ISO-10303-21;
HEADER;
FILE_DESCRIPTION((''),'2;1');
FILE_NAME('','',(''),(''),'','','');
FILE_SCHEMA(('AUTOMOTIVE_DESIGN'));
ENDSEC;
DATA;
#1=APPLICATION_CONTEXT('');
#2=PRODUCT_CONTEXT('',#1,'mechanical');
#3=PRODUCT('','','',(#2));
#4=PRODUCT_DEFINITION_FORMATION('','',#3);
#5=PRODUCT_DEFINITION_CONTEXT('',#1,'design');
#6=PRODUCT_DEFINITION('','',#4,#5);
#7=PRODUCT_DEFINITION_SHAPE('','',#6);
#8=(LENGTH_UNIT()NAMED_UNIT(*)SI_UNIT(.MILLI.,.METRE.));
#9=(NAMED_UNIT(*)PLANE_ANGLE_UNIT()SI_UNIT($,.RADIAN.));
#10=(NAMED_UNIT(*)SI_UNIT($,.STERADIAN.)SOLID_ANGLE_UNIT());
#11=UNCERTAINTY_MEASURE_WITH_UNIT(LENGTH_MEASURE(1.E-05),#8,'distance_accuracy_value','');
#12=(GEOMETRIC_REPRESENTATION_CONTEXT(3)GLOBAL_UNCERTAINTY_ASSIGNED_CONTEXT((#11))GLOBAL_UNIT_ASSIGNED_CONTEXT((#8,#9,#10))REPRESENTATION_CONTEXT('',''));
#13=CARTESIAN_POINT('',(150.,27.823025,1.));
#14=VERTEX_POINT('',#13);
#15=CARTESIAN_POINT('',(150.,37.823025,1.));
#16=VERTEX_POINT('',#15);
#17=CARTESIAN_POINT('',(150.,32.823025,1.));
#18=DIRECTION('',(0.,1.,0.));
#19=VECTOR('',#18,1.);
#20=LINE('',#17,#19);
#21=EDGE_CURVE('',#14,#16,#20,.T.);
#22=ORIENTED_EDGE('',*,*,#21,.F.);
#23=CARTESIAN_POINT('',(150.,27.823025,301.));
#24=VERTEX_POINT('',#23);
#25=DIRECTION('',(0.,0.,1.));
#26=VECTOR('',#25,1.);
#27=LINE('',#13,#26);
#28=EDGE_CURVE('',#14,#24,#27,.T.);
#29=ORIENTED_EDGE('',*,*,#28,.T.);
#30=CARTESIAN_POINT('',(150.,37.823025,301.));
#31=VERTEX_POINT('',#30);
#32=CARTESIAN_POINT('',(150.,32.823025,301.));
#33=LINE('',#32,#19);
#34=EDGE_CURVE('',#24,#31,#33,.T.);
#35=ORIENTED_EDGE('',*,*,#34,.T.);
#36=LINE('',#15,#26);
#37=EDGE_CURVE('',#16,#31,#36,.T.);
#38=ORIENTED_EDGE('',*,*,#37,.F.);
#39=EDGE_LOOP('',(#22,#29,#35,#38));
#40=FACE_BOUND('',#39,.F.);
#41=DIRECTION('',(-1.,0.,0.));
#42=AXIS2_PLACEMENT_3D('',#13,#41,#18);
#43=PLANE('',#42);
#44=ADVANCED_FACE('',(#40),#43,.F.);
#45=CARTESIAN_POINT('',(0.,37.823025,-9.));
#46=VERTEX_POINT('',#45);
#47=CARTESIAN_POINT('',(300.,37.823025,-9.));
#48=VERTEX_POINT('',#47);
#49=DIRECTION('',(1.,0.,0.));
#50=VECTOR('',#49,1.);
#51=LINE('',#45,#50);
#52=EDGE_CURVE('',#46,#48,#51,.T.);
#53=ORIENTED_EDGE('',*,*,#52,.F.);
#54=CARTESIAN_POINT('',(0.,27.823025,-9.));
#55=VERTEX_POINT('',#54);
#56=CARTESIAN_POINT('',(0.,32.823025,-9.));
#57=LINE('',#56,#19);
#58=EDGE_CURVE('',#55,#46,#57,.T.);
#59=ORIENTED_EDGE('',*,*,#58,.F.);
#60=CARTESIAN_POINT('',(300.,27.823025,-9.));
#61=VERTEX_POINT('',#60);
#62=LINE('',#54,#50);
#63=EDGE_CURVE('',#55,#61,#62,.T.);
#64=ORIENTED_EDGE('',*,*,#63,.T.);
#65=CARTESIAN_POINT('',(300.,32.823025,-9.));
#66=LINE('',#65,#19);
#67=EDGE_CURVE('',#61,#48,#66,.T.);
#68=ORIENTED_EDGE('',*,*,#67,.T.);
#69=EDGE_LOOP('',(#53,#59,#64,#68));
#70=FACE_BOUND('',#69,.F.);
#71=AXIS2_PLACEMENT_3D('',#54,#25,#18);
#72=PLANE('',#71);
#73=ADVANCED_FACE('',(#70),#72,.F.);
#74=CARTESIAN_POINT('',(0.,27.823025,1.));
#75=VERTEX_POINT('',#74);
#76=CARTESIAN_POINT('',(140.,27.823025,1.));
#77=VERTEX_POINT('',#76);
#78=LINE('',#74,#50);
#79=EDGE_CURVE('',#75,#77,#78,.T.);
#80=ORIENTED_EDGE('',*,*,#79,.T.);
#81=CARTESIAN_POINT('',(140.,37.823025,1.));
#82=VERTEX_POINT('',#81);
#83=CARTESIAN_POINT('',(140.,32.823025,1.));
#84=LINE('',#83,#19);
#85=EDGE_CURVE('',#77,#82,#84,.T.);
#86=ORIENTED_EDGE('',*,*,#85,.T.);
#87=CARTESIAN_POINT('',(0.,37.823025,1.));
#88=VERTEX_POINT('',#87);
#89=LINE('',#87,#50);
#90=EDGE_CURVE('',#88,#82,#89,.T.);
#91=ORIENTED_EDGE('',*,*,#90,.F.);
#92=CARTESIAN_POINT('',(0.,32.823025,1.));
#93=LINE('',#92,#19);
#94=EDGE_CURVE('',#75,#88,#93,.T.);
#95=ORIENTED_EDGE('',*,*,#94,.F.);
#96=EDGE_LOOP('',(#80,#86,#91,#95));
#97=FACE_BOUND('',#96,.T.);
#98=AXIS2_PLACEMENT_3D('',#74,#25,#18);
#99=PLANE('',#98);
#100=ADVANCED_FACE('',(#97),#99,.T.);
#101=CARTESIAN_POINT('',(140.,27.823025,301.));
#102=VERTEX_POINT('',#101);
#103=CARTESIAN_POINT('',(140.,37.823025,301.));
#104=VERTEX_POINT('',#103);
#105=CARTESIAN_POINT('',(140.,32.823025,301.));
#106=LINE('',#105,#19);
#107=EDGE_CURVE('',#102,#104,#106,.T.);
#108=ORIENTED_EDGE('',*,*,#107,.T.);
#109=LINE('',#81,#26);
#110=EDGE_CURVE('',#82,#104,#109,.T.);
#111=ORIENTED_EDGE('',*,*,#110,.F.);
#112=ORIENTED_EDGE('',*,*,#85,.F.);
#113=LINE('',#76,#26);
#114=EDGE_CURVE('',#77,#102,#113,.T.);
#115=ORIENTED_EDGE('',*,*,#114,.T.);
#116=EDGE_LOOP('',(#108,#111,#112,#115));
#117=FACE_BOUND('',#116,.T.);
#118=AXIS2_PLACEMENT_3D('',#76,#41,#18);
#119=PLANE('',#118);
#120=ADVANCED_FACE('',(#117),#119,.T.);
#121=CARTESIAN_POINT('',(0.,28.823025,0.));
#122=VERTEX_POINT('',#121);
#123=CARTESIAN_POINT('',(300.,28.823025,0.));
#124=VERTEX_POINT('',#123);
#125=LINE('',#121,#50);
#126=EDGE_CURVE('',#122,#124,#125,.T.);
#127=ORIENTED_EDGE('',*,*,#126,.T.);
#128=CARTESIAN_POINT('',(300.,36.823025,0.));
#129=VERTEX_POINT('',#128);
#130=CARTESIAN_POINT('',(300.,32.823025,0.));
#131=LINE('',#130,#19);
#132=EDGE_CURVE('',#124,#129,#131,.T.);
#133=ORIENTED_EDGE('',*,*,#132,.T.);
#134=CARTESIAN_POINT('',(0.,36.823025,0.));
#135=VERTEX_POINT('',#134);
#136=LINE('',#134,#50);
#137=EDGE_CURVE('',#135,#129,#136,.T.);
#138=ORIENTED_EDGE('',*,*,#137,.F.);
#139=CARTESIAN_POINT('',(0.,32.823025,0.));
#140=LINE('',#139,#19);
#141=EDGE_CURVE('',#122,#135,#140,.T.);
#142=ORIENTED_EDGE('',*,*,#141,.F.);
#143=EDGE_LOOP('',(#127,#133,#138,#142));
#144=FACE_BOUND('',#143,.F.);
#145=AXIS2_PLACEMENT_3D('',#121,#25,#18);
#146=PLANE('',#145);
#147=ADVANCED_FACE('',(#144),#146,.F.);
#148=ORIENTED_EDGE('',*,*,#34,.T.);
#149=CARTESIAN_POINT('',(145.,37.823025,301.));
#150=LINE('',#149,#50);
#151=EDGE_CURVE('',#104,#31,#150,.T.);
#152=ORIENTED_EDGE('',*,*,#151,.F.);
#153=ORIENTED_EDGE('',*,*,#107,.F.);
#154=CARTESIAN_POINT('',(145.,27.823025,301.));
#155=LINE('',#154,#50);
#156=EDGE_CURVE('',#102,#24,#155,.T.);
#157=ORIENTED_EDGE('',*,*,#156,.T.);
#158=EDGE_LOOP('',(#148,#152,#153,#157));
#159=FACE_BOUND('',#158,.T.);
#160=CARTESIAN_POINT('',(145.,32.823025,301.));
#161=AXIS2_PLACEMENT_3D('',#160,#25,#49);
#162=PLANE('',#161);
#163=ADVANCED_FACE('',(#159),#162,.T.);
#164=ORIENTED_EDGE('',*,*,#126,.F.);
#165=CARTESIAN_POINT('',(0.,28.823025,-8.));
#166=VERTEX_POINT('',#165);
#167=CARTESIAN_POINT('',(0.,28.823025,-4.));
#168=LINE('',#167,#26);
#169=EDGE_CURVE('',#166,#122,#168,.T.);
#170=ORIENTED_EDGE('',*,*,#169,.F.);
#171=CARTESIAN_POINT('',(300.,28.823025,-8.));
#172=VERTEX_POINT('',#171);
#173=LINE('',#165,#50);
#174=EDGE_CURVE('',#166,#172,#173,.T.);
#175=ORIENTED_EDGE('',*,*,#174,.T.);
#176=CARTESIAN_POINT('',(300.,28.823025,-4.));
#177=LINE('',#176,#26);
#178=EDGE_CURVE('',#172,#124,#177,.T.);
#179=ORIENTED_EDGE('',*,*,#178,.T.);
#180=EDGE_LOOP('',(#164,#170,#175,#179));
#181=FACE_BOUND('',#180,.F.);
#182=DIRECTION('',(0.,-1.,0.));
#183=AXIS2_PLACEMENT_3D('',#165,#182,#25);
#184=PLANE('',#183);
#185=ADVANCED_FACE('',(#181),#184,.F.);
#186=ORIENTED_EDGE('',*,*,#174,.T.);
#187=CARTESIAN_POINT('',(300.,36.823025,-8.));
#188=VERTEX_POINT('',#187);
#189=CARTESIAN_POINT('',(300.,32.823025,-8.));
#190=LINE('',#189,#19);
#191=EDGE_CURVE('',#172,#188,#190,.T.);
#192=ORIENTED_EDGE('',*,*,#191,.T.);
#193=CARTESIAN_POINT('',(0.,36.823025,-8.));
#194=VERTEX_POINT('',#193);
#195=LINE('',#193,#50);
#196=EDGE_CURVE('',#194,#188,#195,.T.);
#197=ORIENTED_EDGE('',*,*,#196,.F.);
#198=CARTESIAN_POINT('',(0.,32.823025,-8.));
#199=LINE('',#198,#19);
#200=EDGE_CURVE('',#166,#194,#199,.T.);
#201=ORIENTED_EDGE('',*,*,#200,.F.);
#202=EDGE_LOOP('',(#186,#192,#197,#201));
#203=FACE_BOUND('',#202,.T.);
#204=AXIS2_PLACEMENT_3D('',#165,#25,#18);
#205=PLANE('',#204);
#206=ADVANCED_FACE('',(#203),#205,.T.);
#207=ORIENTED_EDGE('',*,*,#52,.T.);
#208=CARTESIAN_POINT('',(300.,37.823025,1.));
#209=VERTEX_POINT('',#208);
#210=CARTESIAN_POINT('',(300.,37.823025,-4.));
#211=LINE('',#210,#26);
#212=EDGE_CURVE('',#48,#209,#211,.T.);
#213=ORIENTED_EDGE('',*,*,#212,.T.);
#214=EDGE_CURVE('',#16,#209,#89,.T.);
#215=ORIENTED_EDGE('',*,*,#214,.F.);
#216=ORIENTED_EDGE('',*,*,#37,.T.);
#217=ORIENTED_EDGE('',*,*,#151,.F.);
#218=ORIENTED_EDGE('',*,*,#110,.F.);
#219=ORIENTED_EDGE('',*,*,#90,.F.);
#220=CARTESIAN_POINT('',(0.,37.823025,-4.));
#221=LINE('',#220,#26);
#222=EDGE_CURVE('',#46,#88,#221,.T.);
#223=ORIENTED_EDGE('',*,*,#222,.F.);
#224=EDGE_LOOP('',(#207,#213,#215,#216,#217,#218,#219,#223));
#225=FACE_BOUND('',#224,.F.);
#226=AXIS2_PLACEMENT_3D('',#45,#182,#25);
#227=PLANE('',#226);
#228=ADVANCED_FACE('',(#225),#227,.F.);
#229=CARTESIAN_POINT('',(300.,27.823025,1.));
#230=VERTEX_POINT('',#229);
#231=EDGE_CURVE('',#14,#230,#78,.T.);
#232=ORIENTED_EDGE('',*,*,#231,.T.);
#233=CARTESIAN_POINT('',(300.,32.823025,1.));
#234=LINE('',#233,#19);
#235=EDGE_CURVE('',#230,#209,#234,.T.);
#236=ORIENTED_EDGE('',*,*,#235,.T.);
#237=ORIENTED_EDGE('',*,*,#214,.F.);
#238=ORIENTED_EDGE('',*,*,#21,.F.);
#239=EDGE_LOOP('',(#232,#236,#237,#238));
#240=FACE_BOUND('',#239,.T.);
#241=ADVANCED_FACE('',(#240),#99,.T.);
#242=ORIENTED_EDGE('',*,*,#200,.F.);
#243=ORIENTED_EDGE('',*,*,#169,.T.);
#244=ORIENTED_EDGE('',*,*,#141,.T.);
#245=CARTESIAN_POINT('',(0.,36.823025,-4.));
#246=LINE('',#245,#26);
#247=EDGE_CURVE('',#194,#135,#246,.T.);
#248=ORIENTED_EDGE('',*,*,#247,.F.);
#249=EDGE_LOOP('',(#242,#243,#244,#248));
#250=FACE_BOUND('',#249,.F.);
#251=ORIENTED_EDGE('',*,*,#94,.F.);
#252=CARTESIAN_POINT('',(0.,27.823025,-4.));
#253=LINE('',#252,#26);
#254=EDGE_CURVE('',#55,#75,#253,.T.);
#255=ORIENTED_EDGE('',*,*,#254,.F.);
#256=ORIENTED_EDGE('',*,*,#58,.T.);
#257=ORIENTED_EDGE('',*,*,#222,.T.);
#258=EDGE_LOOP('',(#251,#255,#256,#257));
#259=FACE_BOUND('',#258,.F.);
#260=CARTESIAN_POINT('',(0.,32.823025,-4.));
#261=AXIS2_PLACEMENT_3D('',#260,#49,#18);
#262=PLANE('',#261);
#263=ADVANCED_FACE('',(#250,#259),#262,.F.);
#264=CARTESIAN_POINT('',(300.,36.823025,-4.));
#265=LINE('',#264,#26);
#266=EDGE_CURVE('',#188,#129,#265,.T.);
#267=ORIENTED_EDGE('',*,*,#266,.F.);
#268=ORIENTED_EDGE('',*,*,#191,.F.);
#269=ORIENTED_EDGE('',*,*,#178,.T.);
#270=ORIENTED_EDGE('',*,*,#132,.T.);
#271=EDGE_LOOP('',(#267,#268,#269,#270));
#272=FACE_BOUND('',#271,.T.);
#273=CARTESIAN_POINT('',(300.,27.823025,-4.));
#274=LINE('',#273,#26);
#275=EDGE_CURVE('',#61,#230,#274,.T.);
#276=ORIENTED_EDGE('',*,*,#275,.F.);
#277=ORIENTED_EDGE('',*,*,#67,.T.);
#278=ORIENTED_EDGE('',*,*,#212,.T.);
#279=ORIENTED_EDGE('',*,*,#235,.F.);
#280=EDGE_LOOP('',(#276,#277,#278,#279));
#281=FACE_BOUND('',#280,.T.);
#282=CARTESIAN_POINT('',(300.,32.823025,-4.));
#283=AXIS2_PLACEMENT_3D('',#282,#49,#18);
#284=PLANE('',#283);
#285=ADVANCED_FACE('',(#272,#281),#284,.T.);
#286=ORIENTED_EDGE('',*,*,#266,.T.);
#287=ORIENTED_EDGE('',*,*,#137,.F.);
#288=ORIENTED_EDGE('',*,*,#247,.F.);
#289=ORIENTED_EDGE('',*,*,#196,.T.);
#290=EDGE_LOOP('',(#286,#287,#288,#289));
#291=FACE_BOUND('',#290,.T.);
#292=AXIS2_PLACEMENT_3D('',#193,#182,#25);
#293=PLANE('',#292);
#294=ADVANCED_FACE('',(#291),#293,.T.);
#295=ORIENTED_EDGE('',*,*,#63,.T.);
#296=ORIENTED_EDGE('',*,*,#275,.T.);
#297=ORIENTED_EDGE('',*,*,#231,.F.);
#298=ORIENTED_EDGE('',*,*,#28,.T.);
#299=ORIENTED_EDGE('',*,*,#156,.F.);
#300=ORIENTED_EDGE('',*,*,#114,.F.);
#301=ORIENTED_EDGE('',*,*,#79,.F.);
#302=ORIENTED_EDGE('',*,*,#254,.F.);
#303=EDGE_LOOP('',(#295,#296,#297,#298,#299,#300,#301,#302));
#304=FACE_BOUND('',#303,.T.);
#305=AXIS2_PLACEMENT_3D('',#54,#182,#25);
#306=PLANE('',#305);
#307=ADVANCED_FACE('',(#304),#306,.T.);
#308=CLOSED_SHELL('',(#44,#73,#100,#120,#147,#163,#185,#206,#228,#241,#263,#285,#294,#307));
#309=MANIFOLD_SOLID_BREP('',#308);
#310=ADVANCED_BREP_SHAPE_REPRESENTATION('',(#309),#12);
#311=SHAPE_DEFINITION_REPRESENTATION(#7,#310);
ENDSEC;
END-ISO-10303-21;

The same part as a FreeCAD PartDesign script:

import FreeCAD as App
import Part
import Sketcher
Q = App.Units.Quantity

doc = App.newDocument("Part")
body = doc.addObject("PartDesign::Body", "Body")

# Sketch on YZ plane
sketch1 = body.newObject("Sketcher::SketchObject", "Sketch")
sketch1.AttachmentSupport = (doc.getObject("YZ_Plane"), [""])
sketch1.MapMode = "FlatFace"
sketch1.addGeometry([
    Part.LineSegment(App.Vector(28, 1, 0), App.Vector(28, -9, 0)),  # 0
    Part.LineSegment(App.Vector(28, -9, 0), App.Vector(38, -9, 0)),  # 1
    Part.LineSegment(App.Vector(38, -9, 0), App.Vector(38, 1, 0)),  # 2
    Part.LineSegment(App.Vector(38, 1, 0), App.Vector(28, 1, 0)),  # 3
    Part.LineSegment(App.Vector(37, -8, 0), App.Vector(29, -8, 0)),  # 4
    Part.LineSegment(App.Vector(29, -8, 0), App.Vector(29, 0, 0)),  # 5
    Part.LineSegment(App.Vector(29, 0, 0), App.Vector(37, 0, 0)),  # 6
    Part.LineSegment(App.Vector(37, 0, 0), App.Vector(37, -8, 0)),  # 7
], False)
sketch1.addConstraint([
    Sketcher.Constraint("Coincident", 0, 2, 1, 1),
    Sketcher.Constraint("Coincident", 1, 2, 2, 1),
    Sketcher.Constraint("Coincident", 2, 2, 3, 1),
    Sketcher.Constraint("Coincident", 3, 2, 0, 1),
    Sketcher.Constraint("Coincident", 4, 2, 5, 1),
    Sketcher.Constraint("Coincident", 5, 2, 6, 1),
    Sketcher.Constraint("Coincident", 6, 2, 7, 1),
    Sketcher.Constraint("Coincident", 7, 2, 4, 1),
    Sketcher.Constraint("Vertical", 0),
    Sketcher.Constraint("Horizontal", 1),
    Sketcher.Constraint("Vertical", 2),
    Sketcher.Constraint("Horizontal", 3),
    Sketcher.Constraint("Horizontal", 4),
    Sketcher.Constraint("Vertical", 5),
    Sketcher.Constraint("Horizontal", 6),
    Sketcher.Constraint("Vertical", 7),
    Sketcher.Constraint("PointOnObject", 5, 2, -1),
    Sketcher.Constraint("Equal", 3, 0),
    Sketcher.Constraint("Equal", 6, 5),
    Sketcher.Constraint("DistanceX", 1, 1, 1, 2, Q("10 mm")),
    Sketcher.Constraint("DistanceX", 4, 2, 4, 1, Q("8 mm")),
    Sketcher.Constraint("DistanceY", 0, 2, -1, 1, Q("9 mm")),
    Sketcher.Constraint("DistanceX", 0, 2, 4, 2, Q("1 mm")),
    Sketcher.Constraint("DistanceX", -1, 1, 0, 2, Q("27.823025 mm")),
])
pad1 = body.newObject("PartDesign::Pad", "Pad")
pad1.Profile = sketch1
pad1.Length = 300

# Sketch on XY plane
sketch2 = body.newObject("Sketcher::SketchObject", "Sketch001")
sketch2.AttachmentSupport = (doc.getObject("XY_Plane"), [""])
sketch2.MapMode = "FlatFace"
sketch2.AttachmentOffset = App.Placement(App.Vector(0, 0, 1), App.Rotation())
sketch2.addGeometry([
    Part.LineSegment(App.Vector(140, 38, 0), App.Vector(140, 28, 0)),
    Part.LineSegment(App.Vector(140, 28, 0), App.Vector(150, 28, 0)),
    Part.LineSegment(App.Vector(150, 28, 0), App.Vector(150, 38, 0)),
    Part.LineSegment(App.Vector(150, 38, 0), App.Vector(140, 38, 0)),
], False)
sketch2.addConstraint([
    Sketcher.Constraint("Coincident", 0, 2, 1, 1),
    Sketcher.Constraint("Coincident", 1, 2, 2, 1),
    Sketcher.Constraint("Coincident", 2, 2, 3, 1),
    Sketcher.Constraint("Coincident", 3, 2, 0, 1),
    Sketcher.Constraint("Vertical", 0),
    Sketcher.Constraint("Horizontal", 1),
    Sketcher.Constraint("Vertical", 2),
    Sketcher.Constraint("Horizontal", 3),
    Sketcher.Constraint("Equal", 3, 0),
    Sketcher.Constraint("DistanceX", 1, 1, 1, 2, Q("10 mm")),
    Sketcher.Constraint("DistanceX", -1, 1, 0, 2, Q("140 mm")),
    Sketcher.Constraint("DistanceY", -1, 1, 0, 2, Q("27.823025 mm")),
])
pad2 = body.newObject("PartDesign::Pad", "Pad001")
pad2.Profile = sketch2
pad2.Length = 300

doc.recompute()
